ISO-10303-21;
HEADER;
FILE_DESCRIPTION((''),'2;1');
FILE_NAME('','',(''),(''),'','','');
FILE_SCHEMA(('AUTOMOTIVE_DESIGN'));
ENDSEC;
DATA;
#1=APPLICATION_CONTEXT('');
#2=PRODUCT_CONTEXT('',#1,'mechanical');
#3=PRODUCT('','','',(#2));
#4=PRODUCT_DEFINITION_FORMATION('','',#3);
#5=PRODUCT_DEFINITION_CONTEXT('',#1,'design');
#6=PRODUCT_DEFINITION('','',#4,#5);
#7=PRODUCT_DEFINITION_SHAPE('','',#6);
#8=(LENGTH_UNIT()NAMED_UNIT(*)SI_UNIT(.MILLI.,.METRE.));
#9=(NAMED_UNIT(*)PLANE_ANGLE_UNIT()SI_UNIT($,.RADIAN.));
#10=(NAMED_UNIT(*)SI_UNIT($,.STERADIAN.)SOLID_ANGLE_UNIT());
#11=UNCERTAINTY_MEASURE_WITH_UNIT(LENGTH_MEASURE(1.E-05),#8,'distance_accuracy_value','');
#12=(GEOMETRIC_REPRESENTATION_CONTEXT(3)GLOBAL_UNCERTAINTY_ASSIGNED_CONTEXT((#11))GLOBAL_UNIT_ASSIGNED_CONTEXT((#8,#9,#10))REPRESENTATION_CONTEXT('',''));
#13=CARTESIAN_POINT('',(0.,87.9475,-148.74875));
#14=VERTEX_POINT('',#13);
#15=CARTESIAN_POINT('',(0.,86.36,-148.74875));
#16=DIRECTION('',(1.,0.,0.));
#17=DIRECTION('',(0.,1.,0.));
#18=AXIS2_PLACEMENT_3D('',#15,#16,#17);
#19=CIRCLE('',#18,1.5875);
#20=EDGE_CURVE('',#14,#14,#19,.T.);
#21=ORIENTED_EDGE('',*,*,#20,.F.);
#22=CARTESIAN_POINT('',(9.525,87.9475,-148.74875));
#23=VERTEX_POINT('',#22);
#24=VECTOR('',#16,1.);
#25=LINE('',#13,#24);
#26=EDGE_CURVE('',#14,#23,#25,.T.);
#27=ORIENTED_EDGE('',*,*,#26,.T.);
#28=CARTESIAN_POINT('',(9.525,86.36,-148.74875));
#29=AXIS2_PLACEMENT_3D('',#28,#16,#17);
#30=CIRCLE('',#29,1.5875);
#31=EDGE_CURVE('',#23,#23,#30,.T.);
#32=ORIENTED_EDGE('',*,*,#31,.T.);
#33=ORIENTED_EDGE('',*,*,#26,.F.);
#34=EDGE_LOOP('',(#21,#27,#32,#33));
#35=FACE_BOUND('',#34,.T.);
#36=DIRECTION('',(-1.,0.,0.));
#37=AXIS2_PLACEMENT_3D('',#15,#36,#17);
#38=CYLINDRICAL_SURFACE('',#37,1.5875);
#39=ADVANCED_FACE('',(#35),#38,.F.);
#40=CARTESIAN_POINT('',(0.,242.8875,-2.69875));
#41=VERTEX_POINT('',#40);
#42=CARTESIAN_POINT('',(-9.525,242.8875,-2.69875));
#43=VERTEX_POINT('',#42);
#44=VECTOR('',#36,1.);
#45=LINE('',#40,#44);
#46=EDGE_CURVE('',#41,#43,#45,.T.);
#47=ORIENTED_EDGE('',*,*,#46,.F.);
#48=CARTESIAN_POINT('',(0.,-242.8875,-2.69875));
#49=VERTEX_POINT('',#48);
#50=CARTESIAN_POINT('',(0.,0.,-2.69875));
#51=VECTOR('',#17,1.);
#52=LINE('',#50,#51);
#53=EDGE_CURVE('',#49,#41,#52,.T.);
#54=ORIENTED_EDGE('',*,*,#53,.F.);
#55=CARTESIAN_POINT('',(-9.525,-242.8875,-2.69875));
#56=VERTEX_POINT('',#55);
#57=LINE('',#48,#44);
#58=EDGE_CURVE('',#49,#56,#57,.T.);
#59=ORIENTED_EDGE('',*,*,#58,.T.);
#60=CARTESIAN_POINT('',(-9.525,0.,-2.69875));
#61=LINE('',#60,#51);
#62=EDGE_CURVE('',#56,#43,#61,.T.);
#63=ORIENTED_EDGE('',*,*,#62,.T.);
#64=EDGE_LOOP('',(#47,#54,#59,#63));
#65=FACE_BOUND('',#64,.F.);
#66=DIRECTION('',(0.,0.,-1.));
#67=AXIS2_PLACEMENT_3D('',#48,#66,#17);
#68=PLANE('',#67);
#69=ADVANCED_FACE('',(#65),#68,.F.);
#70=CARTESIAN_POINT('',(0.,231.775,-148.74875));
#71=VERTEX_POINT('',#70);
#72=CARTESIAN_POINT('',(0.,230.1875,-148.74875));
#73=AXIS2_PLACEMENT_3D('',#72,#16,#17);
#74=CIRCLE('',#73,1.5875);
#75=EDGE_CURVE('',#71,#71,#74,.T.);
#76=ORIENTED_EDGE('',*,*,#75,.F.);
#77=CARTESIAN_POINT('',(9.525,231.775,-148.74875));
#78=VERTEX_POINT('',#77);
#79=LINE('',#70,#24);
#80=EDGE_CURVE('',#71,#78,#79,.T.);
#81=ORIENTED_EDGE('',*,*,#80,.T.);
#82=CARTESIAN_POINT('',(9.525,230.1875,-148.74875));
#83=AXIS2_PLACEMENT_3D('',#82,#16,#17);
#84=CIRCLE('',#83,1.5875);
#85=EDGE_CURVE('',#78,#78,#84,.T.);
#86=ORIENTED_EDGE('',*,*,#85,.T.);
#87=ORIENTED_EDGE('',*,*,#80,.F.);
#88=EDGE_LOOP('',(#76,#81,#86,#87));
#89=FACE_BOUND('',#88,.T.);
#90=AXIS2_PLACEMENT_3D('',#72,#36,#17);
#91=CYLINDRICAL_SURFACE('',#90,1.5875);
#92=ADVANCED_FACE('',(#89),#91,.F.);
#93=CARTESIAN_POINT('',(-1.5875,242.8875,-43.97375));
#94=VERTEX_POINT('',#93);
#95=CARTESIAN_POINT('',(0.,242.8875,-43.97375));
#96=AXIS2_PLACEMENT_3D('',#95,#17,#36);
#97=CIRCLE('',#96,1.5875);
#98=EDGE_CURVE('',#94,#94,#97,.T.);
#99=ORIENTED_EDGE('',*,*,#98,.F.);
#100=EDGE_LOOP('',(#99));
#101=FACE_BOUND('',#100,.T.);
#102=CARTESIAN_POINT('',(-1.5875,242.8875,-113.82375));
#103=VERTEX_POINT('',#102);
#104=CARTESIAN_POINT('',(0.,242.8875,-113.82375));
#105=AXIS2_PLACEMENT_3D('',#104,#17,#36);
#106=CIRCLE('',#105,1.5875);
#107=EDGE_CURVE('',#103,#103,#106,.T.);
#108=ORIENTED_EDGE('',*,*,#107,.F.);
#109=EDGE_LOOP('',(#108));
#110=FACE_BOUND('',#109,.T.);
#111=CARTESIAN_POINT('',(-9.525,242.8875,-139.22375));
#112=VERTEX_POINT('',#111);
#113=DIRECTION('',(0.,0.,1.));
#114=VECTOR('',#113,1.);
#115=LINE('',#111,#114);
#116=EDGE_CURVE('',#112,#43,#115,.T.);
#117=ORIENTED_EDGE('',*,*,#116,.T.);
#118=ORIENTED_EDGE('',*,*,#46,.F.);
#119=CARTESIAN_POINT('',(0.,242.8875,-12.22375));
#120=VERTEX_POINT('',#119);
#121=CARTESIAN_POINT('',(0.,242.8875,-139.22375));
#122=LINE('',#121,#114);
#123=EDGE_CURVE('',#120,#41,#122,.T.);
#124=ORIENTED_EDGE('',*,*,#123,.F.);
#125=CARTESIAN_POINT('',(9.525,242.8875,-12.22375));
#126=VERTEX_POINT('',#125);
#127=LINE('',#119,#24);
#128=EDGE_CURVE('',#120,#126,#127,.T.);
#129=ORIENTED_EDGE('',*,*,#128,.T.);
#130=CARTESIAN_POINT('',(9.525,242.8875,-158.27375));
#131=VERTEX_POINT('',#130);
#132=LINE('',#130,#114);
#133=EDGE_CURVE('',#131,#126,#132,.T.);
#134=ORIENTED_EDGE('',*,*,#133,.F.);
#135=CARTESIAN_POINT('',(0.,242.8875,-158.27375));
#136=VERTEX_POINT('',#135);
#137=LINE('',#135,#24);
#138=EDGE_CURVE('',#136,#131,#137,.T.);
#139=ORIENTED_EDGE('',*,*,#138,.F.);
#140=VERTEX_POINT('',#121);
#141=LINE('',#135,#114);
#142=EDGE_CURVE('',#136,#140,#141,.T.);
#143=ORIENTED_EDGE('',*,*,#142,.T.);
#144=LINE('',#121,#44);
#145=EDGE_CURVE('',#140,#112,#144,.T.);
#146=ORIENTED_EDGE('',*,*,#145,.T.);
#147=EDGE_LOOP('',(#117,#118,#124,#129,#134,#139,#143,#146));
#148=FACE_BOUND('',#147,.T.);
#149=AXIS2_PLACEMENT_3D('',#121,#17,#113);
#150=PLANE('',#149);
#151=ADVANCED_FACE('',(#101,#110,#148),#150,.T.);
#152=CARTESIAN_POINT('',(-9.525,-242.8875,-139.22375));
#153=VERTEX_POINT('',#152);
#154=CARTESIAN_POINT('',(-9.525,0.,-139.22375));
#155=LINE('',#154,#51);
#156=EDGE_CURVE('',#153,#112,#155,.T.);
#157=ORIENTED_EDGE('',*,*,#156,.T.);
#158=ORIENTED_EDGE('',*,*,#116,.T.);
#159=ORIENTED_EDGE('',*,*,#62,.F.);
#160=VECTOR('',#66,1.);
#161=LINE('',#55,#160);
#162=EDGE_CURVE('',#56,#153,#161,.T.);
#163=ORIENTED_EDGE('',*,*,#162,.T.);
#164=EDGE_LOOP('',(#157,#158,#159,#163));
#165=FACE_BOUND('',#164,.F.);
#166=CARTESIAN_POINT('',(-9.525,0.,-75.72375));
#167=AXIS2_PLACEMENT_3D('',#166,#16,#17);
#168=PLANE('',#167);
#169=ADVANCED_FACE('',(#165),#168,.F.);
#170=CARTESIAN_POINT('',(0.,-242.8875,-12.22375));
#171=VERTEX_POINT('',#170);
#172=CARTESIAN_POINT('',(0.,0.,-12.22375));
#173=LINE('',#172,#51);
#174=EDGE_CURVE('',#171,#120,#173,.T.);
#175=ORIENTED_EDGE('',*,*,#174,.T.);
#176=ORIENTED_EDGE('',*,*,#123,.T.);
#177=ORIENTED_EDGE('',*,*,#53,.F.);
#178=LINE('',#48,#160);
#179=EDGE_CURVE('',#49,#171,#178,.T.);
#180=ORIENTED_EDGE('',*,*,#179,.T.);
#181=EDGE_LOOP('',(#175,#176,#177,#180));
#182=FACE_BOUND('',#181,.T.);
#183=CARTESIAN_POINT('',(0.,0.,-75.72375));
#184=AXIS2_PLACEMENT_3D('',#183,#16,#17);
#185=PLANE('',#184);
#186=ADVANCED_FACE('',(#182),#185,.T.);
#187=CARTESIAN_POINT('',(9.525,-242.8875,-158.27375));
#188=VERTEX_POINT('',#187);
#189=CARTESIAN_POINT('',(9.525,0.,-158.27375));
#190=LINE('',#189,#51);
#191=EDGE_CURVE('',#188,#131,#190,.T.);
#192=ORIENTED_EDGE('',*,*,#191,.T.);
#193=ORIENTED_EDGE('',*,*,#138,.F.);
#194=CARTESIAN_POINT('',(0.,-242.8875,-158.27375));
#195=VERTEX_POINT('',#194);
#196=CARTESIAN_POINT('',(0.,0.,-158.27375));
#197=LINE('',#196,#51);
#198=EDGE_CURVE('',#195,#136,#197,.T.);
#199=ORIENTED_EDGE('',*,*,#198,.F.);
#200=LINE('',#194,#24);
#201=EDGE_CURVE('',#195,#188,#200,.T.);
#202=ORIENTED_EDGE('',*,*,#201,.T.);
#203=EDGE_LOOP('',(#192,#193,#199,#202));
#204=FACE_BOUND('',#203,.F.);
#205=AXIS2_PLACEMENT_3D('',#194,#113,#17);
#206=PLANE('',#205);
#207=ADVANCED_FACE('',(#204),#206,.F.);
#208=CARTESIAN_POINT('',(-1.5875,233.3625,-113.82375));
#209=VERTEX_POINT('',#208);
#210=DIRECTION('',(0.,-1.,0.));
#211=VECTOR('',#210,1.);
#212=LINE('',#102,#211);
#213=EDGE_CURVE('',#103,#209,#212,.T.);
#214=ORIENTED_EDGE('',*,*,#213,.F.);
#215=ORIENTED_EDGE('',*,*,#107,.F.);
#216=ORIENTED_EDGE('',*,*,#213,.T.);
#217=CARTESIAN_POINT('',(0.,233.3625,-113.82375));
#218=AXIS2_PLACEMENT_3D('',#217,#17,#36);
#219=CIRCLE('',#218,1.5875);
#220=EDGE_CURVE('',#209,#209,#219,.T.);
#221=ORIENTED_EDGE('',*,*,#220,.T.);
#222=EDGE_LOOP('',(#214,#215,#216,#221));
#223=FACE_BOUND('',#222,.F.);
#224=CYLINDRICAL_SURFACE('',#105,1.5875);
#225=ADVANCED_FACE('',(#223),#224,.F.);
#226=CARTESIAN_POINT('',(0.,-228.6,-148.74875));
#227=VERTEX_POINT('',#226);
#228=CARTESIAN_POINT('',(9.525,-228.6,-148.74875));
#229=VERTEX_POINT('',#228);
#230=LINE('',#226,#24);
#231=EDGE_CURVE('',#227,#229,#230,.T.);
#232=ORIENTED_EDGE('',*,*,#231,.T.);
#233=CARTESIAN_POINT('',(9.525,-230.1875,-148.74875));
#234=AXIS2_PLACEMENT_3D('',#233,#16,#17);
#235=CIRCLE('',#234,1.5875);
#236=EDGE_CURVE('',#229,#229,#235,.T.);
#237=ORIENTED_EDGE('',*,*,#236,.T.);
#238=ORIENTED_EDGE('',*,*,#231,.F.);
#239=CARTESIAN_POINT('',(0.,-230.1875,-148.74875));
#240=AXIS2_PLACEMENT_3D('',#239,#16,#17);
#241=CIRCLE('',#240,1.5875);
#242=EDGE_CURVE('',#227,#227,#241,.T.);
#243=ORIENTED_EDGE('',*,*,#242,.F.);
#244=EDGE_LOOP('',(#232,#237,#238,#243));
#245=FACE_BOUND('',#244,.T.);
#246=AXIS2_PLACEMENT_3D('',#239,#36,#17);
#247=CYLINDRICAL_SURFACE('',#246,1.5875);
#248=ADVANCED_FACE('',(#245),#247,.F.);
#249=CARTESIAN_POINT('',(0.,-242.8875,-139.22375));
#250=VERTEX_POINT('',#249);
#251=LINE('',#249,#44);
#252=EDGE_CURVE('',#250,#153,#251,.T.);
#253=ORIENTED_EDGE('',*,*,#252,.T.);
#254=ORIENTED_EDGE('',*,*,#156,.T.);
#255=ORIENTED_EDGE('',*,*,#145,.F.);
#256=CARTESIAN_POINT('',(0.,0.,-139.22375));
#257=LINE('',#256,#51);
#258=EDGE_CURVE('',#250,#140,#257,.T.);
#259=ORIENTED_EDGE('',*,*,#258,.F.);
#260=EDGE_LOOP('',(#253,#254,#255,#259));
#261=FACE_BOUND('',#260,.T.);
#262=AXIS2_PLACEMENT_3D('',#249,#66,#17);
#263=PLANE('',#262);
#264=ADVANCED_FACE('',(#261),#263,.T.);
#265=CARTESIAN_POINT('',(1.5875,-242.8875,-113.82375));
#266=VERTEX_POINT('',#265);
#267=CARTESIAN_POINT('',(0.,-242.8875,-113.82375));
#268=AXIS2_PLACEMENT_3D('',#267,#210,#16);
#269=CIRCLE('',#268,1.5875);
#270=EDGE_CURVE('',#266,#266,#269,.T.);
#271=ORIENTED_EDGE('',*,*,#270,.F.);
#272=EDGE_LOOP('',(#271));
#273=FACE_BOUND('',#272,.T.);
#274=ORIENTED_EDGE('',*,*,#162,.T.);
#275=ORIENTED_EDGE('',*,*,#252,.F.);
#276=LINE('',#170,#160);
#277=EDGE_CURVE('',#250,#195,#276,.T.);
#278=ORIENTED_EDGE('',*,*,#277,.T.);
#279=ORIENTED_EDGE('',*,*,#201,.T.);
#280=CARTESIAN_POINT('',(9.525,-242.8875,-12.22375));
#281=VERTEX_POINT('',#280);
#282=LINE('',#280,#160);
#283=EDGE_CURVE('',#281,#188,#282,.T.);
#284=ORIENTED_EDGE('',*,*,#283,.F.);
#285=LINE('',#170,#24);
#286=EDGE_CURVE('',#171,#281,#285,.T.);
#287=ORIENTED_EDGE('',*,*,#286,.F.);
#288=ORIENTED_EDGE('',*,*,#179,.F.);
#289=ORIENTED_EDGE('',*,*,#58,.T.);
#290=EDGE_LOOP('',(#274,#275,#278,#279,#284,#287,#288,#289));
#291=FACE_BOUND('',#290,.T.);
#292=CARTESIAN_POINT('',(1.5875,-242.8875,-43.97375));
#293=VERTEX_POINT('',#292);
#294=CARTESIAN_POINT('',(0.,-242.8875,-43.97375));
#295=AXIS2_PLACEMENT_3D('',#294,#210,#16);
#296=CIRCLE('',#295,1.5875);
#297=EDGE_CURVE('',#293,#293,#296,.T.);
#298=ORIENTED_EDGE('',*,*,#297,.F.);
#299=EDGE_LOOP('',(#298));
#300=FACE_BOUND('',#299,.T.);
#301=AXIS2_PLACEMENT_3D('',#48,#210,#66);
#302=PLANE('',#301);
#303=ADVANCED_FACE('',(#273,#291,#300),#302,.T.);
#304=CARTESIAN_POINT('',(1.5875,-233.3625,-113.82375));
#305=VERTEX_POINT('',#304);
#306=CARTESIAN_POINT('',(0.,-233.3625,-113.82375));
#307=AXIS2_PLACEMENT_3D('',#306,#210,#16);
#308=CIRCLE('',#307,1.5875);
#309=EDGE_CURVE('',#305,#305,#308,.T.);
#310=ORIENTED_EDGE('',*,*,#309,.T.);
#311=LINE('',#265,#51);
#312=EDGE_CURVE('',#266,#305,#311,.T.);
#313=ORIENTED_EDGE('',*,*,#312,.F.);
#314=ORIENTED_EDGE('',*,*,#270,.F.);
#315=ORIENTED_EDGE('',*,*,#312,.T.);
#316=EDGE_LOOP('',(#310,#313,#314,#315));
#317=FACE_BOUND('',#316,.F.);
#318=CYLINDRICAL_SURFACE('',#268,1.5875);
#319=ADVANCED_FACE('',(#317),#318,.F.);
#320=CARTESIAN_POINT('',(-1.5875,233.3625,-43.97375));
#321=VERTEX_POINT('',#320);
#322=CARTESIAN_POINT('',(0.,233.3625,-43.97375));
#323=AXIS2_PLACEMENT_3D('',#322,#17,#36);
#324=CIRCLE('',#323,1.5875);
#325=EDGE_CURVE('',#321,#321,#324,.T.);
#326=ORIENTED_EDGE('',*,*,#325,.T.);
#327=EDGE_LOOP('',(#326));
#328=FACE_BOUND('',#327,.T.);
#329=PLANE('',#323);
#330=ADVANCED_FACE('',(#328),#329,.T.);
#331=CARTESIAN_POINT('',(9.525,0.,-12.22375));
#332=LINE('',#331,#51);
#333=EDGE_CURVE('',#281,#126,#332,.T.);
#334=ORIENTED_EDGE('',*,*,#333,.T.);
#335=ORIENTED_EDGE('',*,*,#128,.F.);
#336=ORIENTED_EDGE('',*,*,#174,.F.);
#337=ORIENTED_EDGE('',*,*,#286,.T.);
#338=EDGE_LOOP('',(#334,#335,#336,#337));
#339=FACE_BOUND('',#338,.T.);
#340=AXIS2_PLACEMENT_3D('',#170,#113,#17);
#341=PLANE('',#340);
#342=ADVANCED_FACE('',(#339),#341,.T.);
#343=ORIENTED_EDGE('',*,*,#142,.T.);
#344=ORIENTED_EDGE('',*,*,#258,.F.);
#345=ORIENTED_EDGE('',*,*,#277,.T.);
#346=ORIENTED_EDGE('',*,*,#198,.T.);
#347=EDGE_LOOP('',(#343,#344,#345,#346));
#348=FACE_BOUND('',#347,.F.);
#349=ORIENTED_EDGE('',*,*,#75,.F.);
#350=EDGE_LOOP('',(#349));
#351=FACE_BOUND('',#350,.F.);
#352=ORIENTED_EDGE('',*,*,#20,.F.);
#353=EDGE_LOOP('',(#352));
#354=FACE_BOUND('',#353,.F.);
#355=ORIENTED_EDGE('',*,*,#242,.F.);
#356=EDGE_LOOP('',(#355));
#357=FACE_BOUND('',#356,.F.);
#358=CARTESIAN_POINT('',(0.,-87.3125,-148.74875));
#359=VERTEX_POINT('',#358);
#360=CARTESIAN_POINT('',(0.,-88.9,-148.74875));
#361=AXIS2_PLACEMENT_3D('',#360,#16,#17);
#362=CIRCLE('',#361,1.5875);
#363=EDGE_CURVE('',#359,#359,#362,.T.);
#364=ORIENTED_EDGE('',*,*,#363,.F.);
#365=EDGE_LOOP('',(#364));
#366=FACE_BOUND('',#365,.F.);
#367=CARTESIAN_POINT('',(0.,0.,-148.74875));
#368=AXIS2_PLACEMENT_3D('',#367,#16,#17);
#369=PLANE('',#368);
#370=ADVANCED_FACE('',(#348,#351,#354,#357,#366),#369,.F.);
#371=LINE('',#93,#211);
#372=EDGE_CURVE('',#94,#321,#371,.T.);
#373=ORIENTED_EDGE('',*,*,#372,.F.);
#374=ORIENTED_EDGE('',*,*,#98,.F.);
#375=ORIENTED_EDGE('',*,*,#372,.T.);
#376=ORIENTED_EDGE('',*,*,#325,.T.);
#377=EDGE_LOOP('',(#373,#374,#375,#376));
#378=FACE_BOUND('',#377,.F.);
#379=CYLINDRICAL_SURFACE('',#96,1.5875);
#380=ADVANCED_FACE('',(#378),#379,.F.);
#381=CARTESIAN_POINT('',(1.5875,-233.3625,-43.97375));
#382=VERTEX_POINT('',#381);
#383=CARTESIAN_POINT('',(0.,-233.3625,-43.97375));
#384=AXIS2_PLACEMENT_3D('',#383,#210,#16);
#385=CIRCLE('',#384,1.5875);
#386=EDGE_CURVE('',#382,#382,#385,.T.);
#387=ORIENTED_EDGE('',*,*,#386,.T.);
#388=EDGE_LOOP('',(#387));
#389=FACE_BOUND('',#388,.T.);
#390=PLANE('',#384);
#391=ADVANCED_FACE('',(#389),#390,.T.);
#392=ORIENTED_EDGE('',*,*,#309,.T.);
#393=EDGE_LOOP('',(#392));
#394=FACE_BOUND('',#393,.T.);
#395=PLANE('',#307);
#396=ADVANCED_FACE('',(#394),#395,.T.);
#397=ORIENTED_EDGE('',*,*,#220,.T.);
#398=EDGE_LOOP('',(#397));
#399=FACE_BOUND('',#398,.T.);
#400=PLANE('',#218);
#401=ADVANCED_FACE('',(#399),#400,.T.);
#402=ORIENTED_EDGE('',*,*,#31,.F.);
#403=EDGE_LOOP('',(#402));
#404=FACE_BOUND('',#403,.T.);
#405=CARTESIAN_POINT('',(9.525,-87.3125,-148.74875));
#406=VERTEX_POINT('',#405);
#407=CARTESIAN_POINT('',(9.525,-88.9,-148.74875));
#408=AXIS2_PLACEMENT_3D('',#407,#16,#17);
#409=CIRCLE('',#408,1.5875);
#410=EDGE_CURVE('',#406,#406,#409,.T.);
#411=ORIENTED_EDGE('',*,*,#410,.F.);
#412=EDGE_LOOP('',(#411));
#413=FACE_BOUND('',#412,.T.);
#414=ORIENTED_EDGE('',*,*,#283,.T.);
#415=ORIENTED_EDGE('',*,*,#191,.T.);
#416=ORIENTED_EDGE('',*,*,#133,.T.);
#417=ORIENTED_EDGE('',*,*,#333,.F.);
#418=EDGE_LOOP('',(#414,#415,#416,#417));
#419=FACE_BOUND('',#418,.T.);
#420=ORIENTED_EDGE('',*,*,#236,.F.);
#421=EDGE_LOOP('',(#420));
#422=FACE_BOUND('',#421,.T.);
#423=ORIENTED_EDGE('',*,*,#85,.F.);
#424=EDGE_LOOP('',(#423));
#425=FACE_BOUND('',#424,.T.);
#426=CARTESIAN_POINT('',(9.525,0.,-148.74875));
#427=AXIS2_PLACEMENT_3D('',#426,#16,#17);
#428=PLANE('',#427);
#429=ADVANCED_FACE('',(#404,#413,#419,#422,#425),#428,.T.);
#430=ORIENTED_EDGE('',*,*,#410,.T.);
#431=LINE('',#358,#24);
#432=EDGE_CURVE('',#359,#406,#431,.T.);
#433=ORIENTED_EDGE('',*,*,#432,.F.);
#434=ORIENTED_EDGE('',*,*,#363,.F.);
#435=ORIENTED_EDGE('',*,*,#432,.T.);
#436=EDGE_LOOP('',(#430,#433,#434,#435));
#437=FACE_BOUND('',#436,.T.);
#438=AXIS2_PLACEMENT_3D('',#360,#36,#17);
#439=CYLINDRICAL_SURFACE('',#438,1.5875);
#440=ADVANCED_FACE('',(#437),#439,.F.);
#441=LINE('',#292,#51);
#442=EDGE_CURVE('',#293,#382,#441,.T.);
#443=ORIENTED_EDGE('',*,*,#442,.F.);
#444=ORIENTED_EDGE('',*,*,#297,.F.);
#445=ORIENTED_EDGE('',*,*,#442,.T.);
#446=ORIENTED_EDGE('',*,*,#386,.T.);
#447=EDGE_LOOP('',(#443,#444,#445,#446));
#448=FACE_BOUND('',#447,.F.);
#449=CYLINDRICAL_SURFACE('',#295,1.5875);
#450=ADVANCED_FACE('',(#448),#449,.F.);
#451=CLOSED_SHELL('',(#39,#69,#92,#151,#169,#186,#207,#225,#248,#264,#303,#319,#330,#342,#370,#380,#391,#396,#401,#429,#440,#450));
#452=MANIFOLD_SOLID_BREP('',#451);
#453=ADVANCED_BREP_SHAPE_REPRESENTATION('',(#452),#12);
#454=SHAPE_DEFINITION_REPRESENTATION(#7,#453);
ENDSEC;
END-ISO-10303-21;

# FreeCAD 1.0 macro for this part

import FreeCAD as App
import Part
import Sketcher

V = App.Vector
Q = App.Units.Quantity


def add_polygon(sketch, points):
    """Adds a closed chain of lines whose ends are joined by coincident constraints."""
    first, n = sketch.GeometryCount, len(points)
    for a, b in zip(points, points[1:] + points[:1]):
        sketch.addGeometry(Part.LineSegment(App.Vector(*a, 0), App.Vector(*b, 0)), False)
    for i in range(n):
        sketch.addConstraint(Sketcher.Constraint("Coincident", first + i, 2, first + (i + 1) % n, 1))

doc = App.newDocument("Part")
body = doc.addObject("PartDesign::Body", "Body")

sketch1 = doc.addObject("Sketcher::SketchObject", "Sketch")
body.addObject(sketch1)
sketch1.AttachmentSupport = (doc.YZ_Plane, [""])
sketch1.MapMode = "FlatFace"
add_polygon(sketch1, [(-242.8875, -158.27375), (242.8875, -158.27375), (242.8875, -12.22375), (-242.8875, -12.22375)])
sketch1.addGeometry(Part.Circle(V(-230.1875, -148.74875, 0), V(0, 0, 1), 1.5875), False)
sketch1.addGeometry(Part.Circle(V(-88.9, -148.74875, 0), V(0, 0, 1), 1.5875), False)
sketch1.addGeometry(Part.Circle(V(86.36, -148.74875, 0), V(0, 0, 1), 1.5875), False)
sketch1.addGeometry(Part.Circle(V(230.1875, -148.74875, 0), V(0, 0, 1), 1.5875), False)
sketch1.addConstraint(Sketcher.Constraint("Horizontal", 0))
sketch1.addConstraint(Sketcher.Constraint("Vertical", 1))
sketch1.addConstraint(Sketcher.Constraint("Horizontal", 2))
sketch1.addConstraint(Sketcher.Constraint("Vertical", 3))
sketch1.addConstraint(Sketcher.Constraint("Equal", 4, 5))
sketch1.addConstraint(Sketcher.Constraint("Equal", 5, 6))
sketch1.addConstraint(Sketcher.Constraint("Equal", 6, 7))
sketch1.addConstraint(Sketcher.Constraint("Symmetric", 4, 3, 7, 3, -2))
sketch1.addConstraint(Sketcher.Constraint("Horizontal", 4, 3, 5, 3))
sketch1.addConstraint(Sketcher.Constraint("Horizontal", 5, 3, 6, 3))
sketch1.addConstraint(Sketcher.Constraint("Diameter", 4, Q("0.125 in")))
sketch1.addConstraint(Sketcher.Constraint("DistanceY", 1, 1, 1, 2, Q("5.75 in")))
sketch1.addConstraint(Sketcher.Constraint("DistanceX", 5, 3, -1, 1, Q("3.5 in")))
sketch1.addConstraint(Sketcher.Constraint("DistanceX", -1, 1, 6, 3, Q("3.4 in")))
sketch1.addConstraint(Sketcher.Constraint("DistanceX", 7, 3, 0, 2, Q("0.5 in")))
sketch1.addConstraint(Sketcher.Constraint("DistanceX", 2, 2, 4, 3, Q("0.5 in")))
sketch1.addConstraint(Sketcher.Constraint("DistanceX", 0, 1, 0, 2, Q("19.125 in")))
sketch1.addConstraint(Sketcher.Constraint("DistanceY", 0, 2, 7, 3, Q("0.375 in")))
sketch1.addConstraint(Sketcher.Constraint("DistanceY", 4, 3, -1, 1, 148.74875))
pad1 = doc.addObject("PartDesign::Pad", "Pad")
body.addObject(pad1)
pad1.Profile = sketch1
pad1.Length = Q("0.375 in")

sketch2 = doc.addObject("Sketcher::SketchObject", "Sketch001")
body.addObject(sketch2)
sketch2.AttachmentSupport = (doc.YZ_Plane, [""])
sketch2.MapMode = "FlatFace"
add_polygon(sketch2, [(-242.8875, -139.22375), (242.8875, -139.22375), (242.8875, -2.69875), (-242.8875, -2.69875)])
sketch2.addConstraint(Sketcher.Constraint("Horizontal", 0))
sketch2.addConstraint(Sketcher.Constraint("Vertical", 1))
sketch2.addConstraint(Sketcher.Constraint("Horizontal", 2))
sketch2.addConstraint(Sketcher.Constraint("Vertical", 3))
sketch2.addConstraint(Sketcher.Constraint("DistanceX", 0, 1, 0, 2, Q("19.125 in")))
sketch2.addConstraint(Sketcher.Constraint("DistanceY", 1, 1, 1, 2, Q("5.375 in")))
sketch2.addConstraint(Sketcher.Constraint("DistanceX", -1, 1, 0, 2, Q("9.5625 in")))
sketch2.addConstraint(Sketcher.Constraint("DistanceY", 0, 2, -1, 1, 139.22375))
pad2 = doc.addObject("PartDesign::Pad", "Pad001")
body.addObject(pad2)
pad2.Profile = sketch2
pad2.Length = Q("0.375 in")
pad2.Reversed = True

sketch3 = doc.addObject("Sketcher::SketchObject", "Sketch002")
body.addObject(sketch3)
sketch3.AttachmentSupport = (doc.XZ_Plane, [""])
sketch3.MapMode = "FlatFace"
sketch3.AttachmentOffset = App.Placement(V(0, 0, -9.5625 * 25.4), App.Rotation())
sketch3.addGeometry(Part.Circle(V(0, -43.97375, 0), V(0, 0, 1), 1.5875), False)
sketch3.addGeometry(Part.Circle(V(0, -113.82375, 0), V(0, 0, 1), 1.5875), False)
sketch3.addConstraint(Sketcher.Constraint("Equal", 0, 1))
sketch3.addConstraint(Sketcher.Constraint("PointOnObject", 0, 3, -2))
sketch3.addConstraint(Sketcher.Constraint("PointOnObject", 1, 3, -2))
sketch3.addConstraint(Sketcher.Constraint("Diameter", 0, Q("0.125 in")))
sketch3.addConstraint(Sketcher.Constraint("DistanceY", 1, 3, 0, 3, Q("2.75 in")))
sketch3.addConstraint(Sketcher.Constraint("DistanceY", 0, 3, -1, 1, 43.97375))
pocket1 = doc.addObject("PartDesign::Pocket", "Pocket")
body.addObject(pocket1)
pocket1.Profile = sketch3
pocket1.Length = Q("0.375 in")
pocket1.Reversed = True

sketch4 = doc.addObject("Sketcher::SketchObject", "Sketch003")
body.addObject(sketch4)
sketch4.AttachmentSupport = (doc.XZ_Plane, [""])
sketch4.MapMode = "FlatFace"
sketch4.AttachmentOffset = App.Placement(V(0, 0, 9.5625 * 25.4), App.Rotation())
sketch4.addGeometry(Part.Circle(V(0, -113.82375, 0), V(0, 0, 1), 1.5875), False)
sketch4.addGeometry(Part.Circle(V(0, -43.97375, 0), V(0, 0, 1), 1.5875), False)
sketch4.addConstraint(Sketcher.Constraint("Equal", 0, 1))
sketch4.addConstraint(Sketcher.Constraint("PointOnObject", 0, 3, -2))
sketch4.addConstraint(Sketcher.Constraint("PointOnObject", 1, 3, -2))
sketch4.addConstraint(Sketcher.Constraint("Diameter", 0, Q("0.125 in")))
sketch4.addConstraint(Sketcher.Constraint("DistanceY", 0, 3, 1, 3, Q("2.75 in")))
sketch4.addConstraint(Sketcher.Constraint("DistanceY", 0, 3, -1, 1, 113.82375))
pocket2 = doc.addObject("PartDesign::Pocket", "Pocket001")
body.addObject(pocket2)
pocket2.Profile = sketch4
pocket2.Length = Q("0.375 in")

doc.recompute()
